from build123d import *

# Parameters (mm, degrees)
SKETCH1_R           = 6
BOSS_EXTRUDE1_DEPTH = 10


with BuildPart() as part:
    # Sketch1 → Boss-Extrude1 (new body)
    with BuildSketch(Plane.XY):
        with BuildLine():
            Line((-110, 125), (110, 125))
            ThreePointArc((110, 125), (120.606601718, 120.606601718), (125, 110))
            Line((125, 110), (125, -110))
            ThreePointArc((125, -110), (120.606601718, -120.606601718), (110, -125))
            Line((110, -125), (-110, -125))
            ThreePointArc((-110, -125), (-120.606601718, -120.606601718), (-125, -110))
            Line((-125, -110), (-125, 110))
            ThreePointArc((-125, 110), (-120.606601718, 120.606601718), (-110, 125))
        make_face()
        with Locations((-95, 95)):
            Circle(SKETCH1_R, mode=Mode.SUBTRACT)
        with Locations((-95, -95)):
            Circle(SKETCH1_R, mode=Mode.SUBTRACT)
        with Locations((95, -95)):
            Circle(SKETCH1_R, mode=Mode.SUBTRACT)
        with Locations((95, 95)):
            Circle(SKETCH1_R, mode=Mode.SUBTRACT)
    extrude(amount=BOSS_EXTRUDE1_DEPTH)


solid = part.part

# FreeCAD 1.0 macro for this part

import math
import FreeCAD as App
import Part
import Sketcher

V = App.Vector
Q = App.Units.Quantity

doc = App.newDocument("Part")
body = doc.addObject("PartDesign::Body", "Body")

sketch1 = body.newObject("Sketcher::SketchObject", "Sketch")
sketch1.AttachmentSupport = (doc.getObject("XY_Plane"), [""])
sketch1.MapMode = "FlatFace"
sketch1.addGeometry([
    Part.LineSegment(V(110, 125, 0), V(-110, 125, 0)),
    Part.ArcOfCircle(Part.Circle(V(-110, 110, 0), V(0, 0, 1), 15), math.radians(90), math.radians(180)),
    Part.LineSegment(V(-125, 110, 0), V(-125, -110, 0)),
    Part.ArcOfCircle(Part.Circle(V(-110, -110, 0), V(0, 0, 1), 15), math.radians(180), math.radians(270)),
    Part.LineSegment(V(-110, -125, 0), V(110, -125, 0)),
    Part.ArcOfCircle(Part.Circle(V(110, -110, 0), V(0, 0, 1), 15), math.radians(-90), math.radians(0)),
    Part.LineSegment(V(125, -110, 0), V(125, 110, 0)),
    Part.ArcOfCircle(Part.Circle(V(110, 110, 0), V(0, 0, 1), 15), math.radians(0), math.radians(90)),
    Part.Circle(V(95, -95, 0), V(0, 0, 1), 6),
    Part.Circle(V(-95, -95, 0), V(0, 0, 1), 6),
    Part.Circle(V(95, 95, 0), V(0, 0, 1), 6),
    Part.Circle(V(-95, 95, 0), V(0, 0, 1), 6),
], False)
sketch1.addConstraint([
    Sketcher.Constraint("Tangent", 0, 2, 1, 1),
    Sketcher.Constraint("Tangent", 1, 2, 2, 1),
    Sketcher.Constraint("Tangent", 2, 2, 3, 1),
    Sketcher.Constraint("Tangent", 3, 2, 4, 1),
    Sketcher.Constraint("Tangent", 4, 2, 5, 1),
    Sketcher.Constraint("Tangent", 5, 2, 6, 1),
    Sketcher.Constraint("Tangent", 6, 2, 7, 1),
    Sketcher.Constraint("Tangent", 7, 2, 0, 1),
    Sketcher.Constraint("Horizontal", 0),
    Sketcher.Constraint("Vertical", 2),
    Sketcher.Constraint("Horizontal", 4),
    Sketcher.Constraint("Vertical", 6),
    Sketcher.Constraint("Equal", 1, 3),
    Sketcher.Constraint("Equal", 3, 5),
    Sketcher.Constraint("Equal", 5, 7),
    Sketcher.Constraint("Equal", 8, 9),
    Sketcher.Constraint("Equal", 9, 10),
    Sketcher.Constraint("Equal", 10, 11),
    Sketcher.Constraint("Symmetric", 1, 3, 5, 3, -1, 1),
    Sketcher.Constraint("Symmetric", 9, 3, 10, 3, -1, 1),
    Sketcher.Constraint("Symmetric", 8, 3, 11, 3, -1, 1),
    Sketcher.Constraint("Symmetric", 8, 3, 9, 3, -2),
    Sketcher.Constraint("Equal", 4, 2),
    Sketcher.Constraint("Diameter", 8, Q("12 mm")),
    Sketcher.Constraint("Radius", 1, Q("15 mm")),
    Sketcher.Constraint("DistanceX", 0, 2, 0, 1, Q("220 mm")),
    Sketcher.Constraint("DistanceX", -1, 1, 8, 3, Q("95 mm")),
    Sketcher.Constraint("DistanceY", 8, 3, -1, 1, Q("95 mm")),
])
pad1 = body.newObject("PartDesign::Pad", "Pad")
pad1.Profile = sketch1
pad1.Length = 10

doc.recompute()
